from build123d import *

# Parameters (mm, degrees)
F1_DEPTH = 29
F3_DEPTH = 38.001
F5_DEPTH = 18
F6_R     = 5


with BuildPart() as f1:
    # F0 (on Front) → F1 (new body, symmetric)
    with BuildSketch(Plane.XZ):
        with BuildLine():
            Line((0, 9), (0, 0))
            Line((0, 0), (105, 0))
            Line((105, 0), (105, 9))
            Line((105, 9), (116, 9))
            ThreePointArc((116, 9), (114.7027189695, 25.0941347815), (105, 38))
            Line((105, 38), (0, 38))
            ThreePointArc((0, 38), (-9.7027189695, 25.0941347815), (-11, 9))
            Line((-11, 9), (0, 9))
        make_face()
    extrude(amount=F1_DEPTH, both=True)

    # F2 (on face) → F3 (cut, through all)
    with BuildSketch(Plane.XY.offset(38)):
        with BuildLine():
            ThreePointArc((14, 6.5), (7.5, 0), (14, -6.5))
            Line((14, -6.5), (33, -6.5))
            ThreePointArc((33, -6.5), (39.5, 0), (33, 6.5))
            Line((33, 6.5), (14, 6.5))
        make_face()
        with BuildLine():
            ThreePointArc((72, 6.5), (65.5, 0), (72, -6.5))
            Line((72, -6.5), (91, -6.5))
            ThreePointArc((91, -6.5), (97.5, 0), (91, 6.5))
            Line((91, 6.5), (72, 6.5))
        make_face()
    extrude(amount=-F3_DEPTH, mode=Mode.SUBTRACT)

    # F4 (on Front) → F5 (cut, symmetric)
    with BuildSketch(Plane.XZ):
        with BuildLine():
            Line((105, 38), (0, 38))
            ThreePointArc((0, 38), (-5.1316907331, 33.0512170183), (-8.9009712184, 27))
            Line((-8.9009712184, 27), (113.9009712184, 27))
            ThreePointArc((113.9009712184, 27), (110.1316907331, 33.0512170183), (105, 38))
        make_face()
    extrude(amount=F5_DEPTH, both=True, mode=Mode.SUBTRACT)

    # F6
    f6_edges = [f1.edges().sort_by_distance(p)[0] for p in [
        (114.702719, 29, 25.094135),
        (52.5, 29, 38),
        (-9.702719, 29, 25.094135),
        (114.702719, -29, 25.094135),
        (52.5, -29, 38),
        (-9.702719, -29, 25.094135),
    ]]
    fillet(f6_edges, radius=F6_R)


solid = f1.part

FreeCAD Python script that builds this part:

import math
import FreeCAD as App
import Part
import Sketcher

V = App.Vector


def edges_at(feature, points):
    """Names of the edges that pass closest to the given points."""
    edges = feature.Shape.Edges
    near = lambda p: min(range(len(edges)), key=lambda i: edges[i].distToShape(Part.Vertex(*p))[0])
    return sorted({f"Edge{near(p) + 1}" for p in points})

doc = App.newDocument("Part")
body = doc.addObject("PartDesign::Body", "Body")

# Sketch on XZ plane
sketch1 = body.newObject("Sketcher::SketchObject", "Sketch")
sketch1.AttachmentSupport = (doc.getObject("XZ_Plane"), [""])
sketch1.MapMode = "FlatFace"
sketch1.addGeometry([
    Part.LineSegment(V(0, 9, 0), V(0, 0, 0)),  # 0
    Part.LineSegment(V(0, 0, 0), V(105, 0, 0)),  # 1
    Part.LineSegment(V(105, 0, 0), V(105, 9, 0)),  # 2
    Part.LineSegment(V(105, 9, 0), V(116, 9, 0)),  # 3
    Part.ArcOfCircle(Part.Circle(V(88, 15, 0), V(0, 0, 1), 29), math.radians(-12), math.radians(53)),  # 4
    Part.LineSegment(V(105, 38, 0), V(0, 38, 0)),  # 5
    Part.ArcOfCircle(Part.Circle(V(17, 15, 0), V(0, 0, 1), 29), math.radians(127), math.radians(192)),  # 6
    Part.LineSegment(V(-11, 9, 0), V(0, 9, 0)),  # 7
], False)
sketch1.addConstraint([
    Sketcher.Constraint("Coincident", 0, 2, 1, 1),
    Sketcher.Constraint("Coincident", 1, 2, 2, 1),
    Sketcher.Constraint("Coincident", 2, 2, 3, 1),
    Sketcher.Constraint("Coincident", 3, 2, 4, 1),
    Sketcher.Constraint("Coincident", 4, 2, 5, 1),
    Sketcher.Constraint("Coincident", 5, 2, 6, 1),
    Sketcher.Constraint("Coincident", 6, 2, 7, 1),
    Sketcher.Constraint("Coincident", 7, 2, 0, 1),
    Sketcher.Constraint("Vertical", 0),
    Sketcher.Constraint("Horizontal", 1),
    Sketcher.Constraint("Vertical", 2),
    Sketcher.Constraint("Horizontal", 3),
    Sketcher.Constraint("Horizontal", 5),
    Sketcher.Constraint("Horizontal", 7),
    Sketcher.Constraint("Coincident", 0, 2, -1, 1),
    Sketcher.Constraint("Equal", 4, 6),
    Sketcher.Constraint("PointOnObject", 5, 2, -2),
    Sketcher.Constraint("Horizontal", 4, 3, 6, 3),
    Sketcher.Constraint("Horizontal", 3, 2, 6, 2),
    Sketcher.Constraint("Vertical", 2, 2, 4, 2),
    Sketcher.Constraint("Radius", 4, 29.0),
    Sketcher.Constraint("DistanceX", 1, 1, 1, 2, 105.0),
    Sketcher.Constraint("DistanceX", 3, 1, 3, 2, 11.0),
    Sketcher.Constraint("DistanceY", 0, 2, 0, 1, 9.0),
    Sketcher.Constraint("DistanceY", -1, 1, 4, 2, 38.0),
])
pad1 = body.newObject("PartDesign::Pad", "Pad")
pad1.Profile = sketch1
pad1.Length = 58
pad1.Midplane = True

# Sketch on XY plane
sketch2 = body.newObject("Sketcher::SketchObject", "Sketch001")
sketch2.AttachmentSupport = (doc.getObject("XY_Plane"), [""])
sketch2.MapMode = "FlatFace"
sketch2.AttachmentOffset = App.Placement(V(0, 0, 38), App.Rotation())
sketch2.addGeometry([
    Part.ArcOfCircle(Part.Circle(V(14, 0, 0), V(0, 0, 1), 6), math.radians(90), math.radians(270)),  # 0
    Part.LineSegment(V(14, -6, 0), V(33, -6, 0)),  # 1
    Part.ArcOfCircle(Part.Circle(V(33, 0, 0), V(0, 0, 1), 6), math.radians(-90), math.radians(90)),  # 2
    Part.LineSegment(V(33, 6, 0), V(14, 6, 0)),  # 3
    Part.ArcOfCircle(Part.Circle(V(72, 0, 0), V(0, 0, 1), 6), math.radians(90), math.radians(270)),  # 4
    Part.LineSegment(V(72, -6, 0), V(91, -6, 0)),  # 5
    Part.ArcOfCircle(Part.Circle(V(91, 0, 0), V(0, 0, 1), 6), math.radians(-90), math.radians(90)),  # 6
    Part.LineSegment(V(91, 6, 0), V(72, 6, 0)),  # 7
], False)
sketch2.addConstraint([
    Sketcher.Constraint("Tangent", 0, 2, 1, 1),
    Sketcher.Constraint("Tangent", 1, 2, 2, 1),
    Sketcher.Constraint("Tangent", 2, 2, 3, 1),
    Sketcher.Constraint("Tangent", 3, 2, 0, 1),
    Sketcher.Constraint("Tangent", 4, 2, 5, 1),
    Sketcher.Constraint("Tangent", 5, 2, 6, 1),
    Sketcher.Constraint("Tangent", 6, 2, 7, 1),
    Sketcher.Constraint("Tangent", 7, 2, 4, 1),
    Sketcher.Constraint("Horizontal", 1),
    Sketcher.Constraint("Horizontal", 3),
    Sketcher.Constraint("Horizontal", 5),
    Sketcher.Constraint("Horizontal", 7),
    Sketcher.Constraint("Equal", 2, 4),
    Sketcher.Constraint("PointOnObject", 0, 3, -1),
    Sketcher.Constraint("PointOnObject", 4, 3, -1),
    Sketcher.Constraint("Equal", 3, 5),
    Sketcher.Constraint("Radius", 0, 6.5),
    Sketcher.Constraint("DistanceX", 1, 1, 1, 2, 19.0),
    Sketcher.Constraint("DistanceX", -1, 1, 0, 3, 14.0),
    Sketcher.Constraint("DistanceX", -1, 1, 4, 3, 72.0),
])
pocket1 = body.newObject("PartDesign::Pocket", "Pocket")
pocket1.Profile = sketch2
pocket1.Type = "ThroughAll"

# Sketch on XZ plane
sketch3 = body.newObject("Sketcher::SketchObject", "Sketch002")
sketch3.AttachmentSupport = (doc.getObject("XZ_Plane"), [""])
sketch3.MapMode = "FlatFace"
sketch3.addGeometry([
    Part.LineSegment(V(105, 38, 0), V(0, 38, 0)),
    Part.ArcOfCircle(Part.Circle(V(17, 15, 0), V(0, 0, 1), 29), math.radians(127), math.radians(155)),
    Part.LineSegment(V(-9, 27, 0), V(114, 27, 0)),
    Part.ArcOfCircle(Part.Circle(V(88, 15, 0), V(0, 0, 1), 29), math.radians(25), math.radians(53)),
], False)
sketch3.addConstraint([
    Sketcher.Constraint("Coincident", 0, 2, 1, 1),
    Sketcher.Constraint("Coincident", 1, 2, 2, 1),
    Sketcher.Constraint("Coincident", 2, 2, 3, 1),
    Sketcher.Constraint("Coincident", 3, 2, 0, 1),
    Sketcher.Constraint("Horizontal", 0),
    Sketcher.Constraint("Horizontal", 2),
    Sketcher.Constraint("Equal", 1, 3),
    Sketcher.Constraint("PointOnObject", 0, 2, -2),
    Sketcher.Constraint("Horizontal", 1, 3, 3, 3),
    Sketcher.Constraint("Radius", 1, 29.0),
    Sketcher.Constraint("DistanceX", 0, 2, 0, 1, 105.0),
    Sketcher.Constraint("DistanceY", -1, 1, 0, 2, 38.0),
    Sketcher.Constraint("DistanceY", -1, 1, 1, 2, 27.0),
    Sketcher.Constraint("DistanceX", 2, 1, 2, 2, 122.801942),
])
pocket2 = body.newObject("PartDesign::Pocket", "Pocket001")
pocket2.Profile = sketch3
pocket2.Length = 36
pocket2.Midplane = True
doc.recompute()

fillet = body.newObject("PartDesign::Fillet", "Fillet")
fillet.Base = (pocket2, edges_at(pocket2, [
    (114.703, 29, 25.094),
    (52.5, 29, 38),
    (-9.703, 29, 25.094),
    (114.703, -29, 25.094),
    (52.5, -29, 38),
    (-9.703, -29, 25.094),
]))
fillet.Radius = 5

doc.recompute()
